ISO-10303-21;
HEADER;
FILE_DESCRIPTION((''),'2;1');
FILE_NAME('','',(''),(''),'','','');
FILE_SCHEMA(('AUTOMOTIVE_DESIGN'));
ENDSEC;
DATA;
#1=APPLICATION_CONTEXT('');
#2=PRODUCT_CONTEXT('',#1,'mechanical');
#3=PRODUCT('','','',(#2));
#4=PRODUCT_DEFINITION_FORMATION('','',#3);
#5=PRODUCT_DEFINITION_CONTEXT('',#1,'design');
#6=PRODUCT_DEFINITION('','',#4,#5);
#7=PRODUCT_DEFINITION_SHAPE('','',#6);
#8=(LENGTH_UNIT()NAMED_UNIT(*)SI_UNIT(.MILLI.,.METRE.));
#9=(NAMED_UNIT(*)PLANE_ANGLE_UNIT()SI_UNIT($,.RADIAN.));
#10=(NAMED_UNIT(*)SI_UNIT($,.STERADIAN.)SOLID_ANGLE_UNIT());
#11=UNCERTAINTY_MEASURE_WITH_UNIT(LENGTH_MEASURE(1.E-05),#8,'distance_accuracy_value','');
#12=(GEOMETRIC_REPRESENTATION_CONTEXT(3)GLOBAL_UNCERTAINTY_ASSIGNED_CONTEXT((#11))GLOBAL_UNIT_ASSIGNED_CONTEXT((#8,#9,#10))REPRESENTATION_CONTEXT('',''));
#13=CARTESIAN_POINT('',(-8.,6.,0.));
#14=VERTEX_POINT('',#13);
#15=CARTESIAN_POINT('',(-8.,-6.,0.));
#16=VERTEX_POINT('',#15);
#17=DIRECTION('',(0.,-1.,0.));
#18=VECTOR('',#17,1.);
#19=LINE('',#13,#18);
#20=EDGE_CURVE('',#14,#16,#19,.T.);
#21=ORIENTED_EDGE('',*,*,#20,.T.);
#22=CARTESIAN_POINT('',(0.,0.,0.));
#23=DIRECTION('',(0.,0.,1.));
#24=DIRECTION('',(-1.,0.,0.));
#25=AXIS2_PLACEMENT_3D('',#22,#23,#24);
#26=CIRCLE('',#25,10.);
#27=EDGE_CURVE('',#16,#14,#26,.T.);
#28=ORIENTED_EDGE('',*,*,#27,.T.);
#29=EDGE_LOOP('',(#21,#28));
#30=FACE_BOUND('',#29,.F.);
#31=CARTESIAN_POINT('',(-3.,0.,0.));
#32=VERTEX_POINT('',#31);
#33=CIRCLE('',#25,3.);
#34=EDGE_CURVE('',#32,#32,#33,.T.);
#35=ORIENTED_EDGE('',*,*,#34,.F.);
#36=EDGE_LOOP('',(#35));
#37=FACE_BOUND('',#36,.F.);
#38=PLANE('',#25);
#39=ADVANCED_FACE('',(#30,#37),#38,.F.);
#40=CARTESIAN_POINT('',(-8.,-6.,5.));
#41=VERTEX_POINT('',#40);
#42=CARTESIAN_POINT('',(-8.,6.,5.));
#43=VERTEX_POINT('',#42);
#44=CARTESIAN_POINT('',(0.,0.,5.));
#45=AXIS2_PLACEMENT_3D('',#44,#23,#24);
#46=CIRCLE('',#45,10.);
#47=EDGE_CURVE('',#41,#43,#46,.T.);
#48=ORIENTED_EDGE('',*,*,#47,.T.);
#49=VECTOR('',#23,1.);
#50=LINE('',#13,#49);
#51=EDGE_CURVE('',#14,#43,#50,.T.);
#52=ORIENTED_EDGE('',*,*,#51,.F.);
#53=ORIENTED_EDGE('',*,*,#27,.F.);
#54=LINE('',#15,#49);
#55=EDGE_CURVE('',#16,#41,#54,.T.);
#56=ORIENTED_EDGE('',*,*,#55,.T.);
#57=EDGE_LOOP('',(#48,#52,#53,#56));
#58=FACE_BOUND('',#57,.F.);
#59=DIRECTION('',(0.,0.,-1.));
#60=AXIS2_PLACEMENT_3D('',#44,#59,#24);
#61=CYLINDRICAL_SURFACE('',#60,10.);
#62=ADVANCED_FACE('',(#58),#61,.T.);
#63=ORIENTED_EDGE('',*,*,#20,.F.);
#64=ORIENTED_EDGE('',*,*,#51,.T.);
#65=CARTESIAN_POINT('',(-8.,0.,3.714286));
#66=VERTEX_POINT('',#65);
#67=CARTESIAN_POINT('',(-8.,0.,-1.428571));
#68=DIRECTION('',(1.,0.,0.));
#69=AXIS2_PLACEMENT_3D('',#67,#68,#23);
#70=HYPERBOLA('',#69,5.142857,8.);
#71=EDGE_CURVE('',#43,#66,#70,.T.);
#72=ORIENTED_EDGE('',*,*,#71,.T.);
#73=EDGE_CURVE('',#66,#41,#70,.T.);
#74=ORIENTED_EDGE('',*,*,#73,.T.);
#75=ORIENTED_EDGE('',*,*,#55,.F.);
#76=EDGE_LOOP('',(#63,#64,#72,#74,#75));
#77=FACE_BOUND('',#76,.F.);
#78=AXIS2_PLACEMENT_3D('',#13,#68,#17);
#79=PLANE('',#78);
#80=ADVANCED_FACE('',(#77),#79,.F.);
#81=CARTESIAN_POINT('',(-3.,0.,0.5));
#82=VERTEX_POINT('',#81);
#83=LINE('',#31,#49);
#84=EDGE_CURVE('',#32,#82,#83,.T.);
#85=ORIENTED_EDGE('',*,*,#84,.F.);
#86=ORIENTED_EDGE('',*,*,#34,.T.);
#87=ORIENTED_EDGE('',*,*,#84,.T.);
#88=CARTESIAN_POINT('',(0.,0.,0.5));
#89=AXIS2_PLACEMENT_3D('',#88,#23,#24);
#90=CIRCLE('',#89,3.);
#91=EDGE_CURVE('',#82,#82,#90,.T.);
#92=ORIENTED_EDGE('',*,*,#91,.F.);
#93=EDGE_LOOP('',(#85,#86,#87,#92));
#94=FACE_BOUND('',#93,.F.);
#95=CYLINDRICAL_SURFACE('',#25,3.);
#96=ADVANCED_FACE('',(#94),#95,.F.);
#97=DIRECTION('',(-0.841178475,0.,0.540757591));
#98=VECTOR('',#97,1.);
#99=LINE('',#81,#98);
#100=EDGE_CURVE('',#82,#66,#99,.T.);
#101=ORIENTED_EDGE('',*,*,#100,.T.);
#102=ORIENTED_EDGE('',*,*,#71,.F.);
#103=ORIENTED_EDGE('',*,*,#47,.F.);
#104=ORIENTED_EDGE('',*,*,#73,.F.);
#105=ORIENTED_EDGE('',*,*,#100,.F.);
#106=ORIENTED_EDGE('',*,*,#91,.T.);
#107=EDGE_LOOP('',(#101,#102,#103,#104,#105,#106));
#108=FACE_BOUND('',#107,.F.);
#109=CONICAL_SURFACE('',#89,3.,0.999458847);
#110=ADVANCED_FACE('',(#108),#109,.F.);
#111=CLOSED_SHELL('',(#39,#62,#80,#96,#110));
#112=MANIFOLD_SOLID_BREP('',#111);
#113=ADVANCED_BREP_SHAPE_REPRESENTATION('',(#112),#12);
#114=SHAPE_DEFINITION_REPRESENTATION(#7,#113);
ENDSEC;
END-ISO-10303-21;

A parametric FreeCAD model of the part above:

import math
import FreeCAD as App
import Part
import Sketcher

V = App.Vector
Q = App.Units.Quantity

doc = App.newDocument("Part")
body = doc.addObject("PartDesign::Body", "Body")

sketch1 = doc.addObject("Sketcher::SketchObject", "Sketch")
body.addObject(sketch1)
sketch1.AttachmentSupport = (doc.XZ_Plane, [""])
sketch1.MapMode = "FlatFace"
sketch1.addGeometry([
    Part.LineSegment(V(-10, 0, 0), V(-3, 0, 0)),
    Part.LineSegment(V(-3, 0, 0), V(-3, 0.5, 0)),
    Part.LineSegment(V(-3, 0.5, 0), V(-10, 5, 0)),
    Part.LineSegment(V(-10, 5, 0), V(-10, 0, 0)),
], False)
sketch1.addConstraint([
    Sketcher.Constraint("Coincident", 0, 2, 1, 1),
    Sketcher.Constraint("Coincident", 1, 2, 2, 1),
    Sketcher.Constraint("Coincident", 2, 2, 3, 1),
    Sketcher.Constraint("Coincident", 3, 2, 0, 1),
    Sketcher.Constraint("Horizontal", 0),
    Sketcher.Constraint("Vertical", 1),
    Sketcher.Constraint("Vertical", 3),
    Sketcher.Constraint("PointOnObject", 0, 2, -1),
    Sketcher.Constraint("DistanceX", 0, 1, 0, 2, Q("7 mm")),
    Sketcher.Constraint("DistanceY", 3, 2, 3, 1, Q("5 mm")),
    Sketcher.Constraint("DistanceY", 1, 1, 1, 2, Q("0.5 mm")),
    Sketcher.Constraint("DistanceX", 0, 2, -1, 1, Q("3 mm")),
])
revolution = doc.addObject("PartDesign::Revolution", "Revolution")
body.addObject(revolution)
revolution.Profile = sketch1
revolution.ReferenceAxis = (sketch1, ["V_Axis"])
revolution.Angle = 360

sketch2 = doc.addObject("Sketcher::SketchObject", "Sketch001")
body.addObject(sketch2)
sketch2.AttachmentSupport = (doc.XY_Plane, [""])
sketch2.MapMode = "FlatFace"
sketch2.addGeometry([
    Part.LineSegment(V(-8, 6, 0), V(-8, -6, 0)),
    Part.ArcOfCircle(Part.Circle(V(0, 0, 0), V(0, 0, 1), 10), math.radians(143), math.radians(217)),
], False)
sketch2.addConstraint([
    Sketcher.Constraint("Coincident", 0, 1, 1, 1),
    Sketcher.Constraint("Coincident", 1, 2, 0, 2),
    Sketcher.Constraint("Vertical", 0),
    Sketcher.Constraint("Coincident", 1, 3, -1, 1),
    Sketcher.Constraint("Radius", 1, Q("10 mm")),
    Sketcher.Constraint("DistanceY", 0, 2, 0, 1, Q("12 mm")),
])
pocket1 = doc.addObject("PartDesign::Pocket", "Pocket")
body.addObject(pocket1)
pocket1.Profile = sketch2
pocket1.Length = 25
pocket1.Reversed = True

doc.recompute()
